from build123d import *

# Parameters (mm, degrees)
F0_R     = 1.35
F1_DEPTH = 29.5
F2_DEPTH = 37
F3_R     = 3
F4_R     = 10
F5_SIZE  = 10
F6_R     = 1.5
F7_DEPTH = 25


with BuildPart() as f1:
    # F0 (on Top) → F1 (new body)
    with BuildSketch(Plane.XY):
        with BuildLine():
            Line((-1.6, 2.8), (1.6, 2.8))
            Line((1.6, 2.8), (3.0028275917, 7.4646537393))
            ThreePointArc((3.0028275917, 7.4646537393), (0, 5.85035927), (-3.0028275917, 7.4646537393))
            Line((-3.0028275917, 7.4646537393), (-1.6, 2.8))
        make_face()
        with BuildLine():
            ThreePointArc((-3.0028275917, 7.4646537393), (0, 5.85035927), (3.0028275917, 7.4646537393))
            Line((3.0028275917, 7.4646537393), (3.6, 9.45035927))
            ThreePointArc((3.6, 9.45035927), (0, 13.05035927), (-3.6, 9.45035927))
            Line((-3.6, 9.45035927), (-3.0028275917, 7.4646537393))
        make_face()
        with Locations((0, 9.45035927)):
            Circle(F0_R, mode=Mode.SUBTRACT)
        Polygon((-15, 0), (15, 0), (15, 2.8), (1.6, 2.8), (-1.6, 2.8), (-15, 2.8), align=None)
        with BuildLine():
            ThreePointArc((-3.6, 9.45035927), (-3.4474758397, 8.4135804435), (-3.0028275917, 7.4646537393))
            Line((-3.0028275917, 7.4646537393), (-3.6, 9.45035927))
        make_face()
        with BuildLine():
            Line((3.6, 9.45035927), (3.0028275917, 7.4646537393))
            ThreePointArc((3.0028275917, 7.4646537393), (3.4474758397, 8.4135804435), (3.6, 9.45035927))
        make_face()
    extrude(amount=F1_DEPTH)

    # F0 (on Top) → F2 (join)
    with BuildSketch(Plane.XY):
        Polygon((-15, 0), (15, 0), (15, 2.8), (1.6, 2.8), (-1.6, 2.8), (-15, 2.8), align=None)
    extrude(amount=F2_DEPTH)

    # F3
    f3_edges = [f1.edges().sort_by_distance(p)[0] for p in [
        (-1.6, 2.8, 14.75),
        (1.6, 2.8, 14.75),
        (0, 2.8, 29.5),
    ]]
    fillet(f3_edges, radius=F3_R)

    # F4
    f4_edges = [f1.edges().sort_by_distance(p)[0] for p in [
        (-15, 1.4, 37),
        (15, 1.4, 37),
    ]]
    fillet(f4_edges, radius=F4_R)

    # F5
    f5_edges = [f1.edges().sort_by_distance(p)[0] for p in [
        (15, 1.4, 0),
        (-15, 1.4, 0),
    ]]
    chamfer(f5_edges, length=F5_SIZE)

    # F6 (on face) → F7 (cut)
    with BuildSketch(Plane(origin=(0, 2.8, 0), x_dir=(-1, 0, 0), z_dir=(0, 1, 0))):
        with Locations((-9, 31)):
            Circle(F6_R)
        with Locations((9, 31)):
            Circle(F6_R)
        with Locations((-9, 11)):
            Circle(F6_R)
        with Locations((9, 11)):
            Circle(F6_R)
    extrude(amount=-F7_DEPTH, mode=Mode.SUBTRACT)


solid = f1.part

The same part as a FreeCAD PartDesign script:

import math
import FreeCAD as App
import Part
import Sketcher

V = App.Vector


def edges_at(feature, points):
    """Names of the edges that pass closest to the given points."""
    edges = feature.Shape.Edges
    near = lambda p: min(range(len(edges)), key=lambda i: edges[i].distToShape(Part.Vertex(*p))[0])
    return sorted({f"Edge{near(p) + 1}" for p in points})

doc = App.newDocument("Part")
body = doc.addObject("PartDesign::Body", "Body")

# Sketch on XY plane
sketch1 = body.newObject("Sketcher::SketchObject", "Sketch")
sketch1.AttachmentSupport = (doc.getObject("XY_Plane"), [""])
sketch1.MapMode = "FlatFace"
sketch1.addGeometry([
    Part.LineSegment(V(-3, 7.5, 0), V(-1.6, 2.8, 0)),  # 0
    Part.LineSegment(V(-1.6, 2.8, 0), V(-15, 2.8, 0)),  # 1
    Part.LineSegment(V(-15, 2.8, 0), V(-15, 0, 0)),  # 2
    Part.LineSegment(V(-15, 0, 0), V(15, 0, 0)),  # 3
    Part.LineSegment(V(15, 0, 0), V(15, 2.8, 0)),  # 4
    Part.LineSegment(V(15, 2.8, 0), V(1.6, 2.8, 0)),  # 5
    Part.LineSegment(V(1.6, 2.8, 0), V(3, 7.5, 0)),  # 6
    Part.ArcOfCircle(Part.Circle(V(0, 9.5, 0), V(0, 0, 1), 3.6), math.radians(-33), math.radians(0)),  # 7
    Part.ArcOfCircle(Part.Circle(V(0, 9.5, 0), V(0, 0, 1), 3.6), math.radians(0), math.radians(180)),  # 8
    Part.ArcOfCircle(Part.Circle(V(0, 9.5, 0), V(0, 0, 1), 3.6), math.radians(180), math.radians(213)),  # 9
    Part.Circle(V(0, 9.5, 0), V(0, 0, 1), 1.4),  # 10
], False)
sketch1.addConstraint([
    Sketcher.Constraint("Coincident", 0, 2, 1, 1),
    Sketcher.Constraint("Coincident", 1, 2, 2, 1),
    Sketcher.Constraint("Coincident", 2, 2, 3, 1),
    Sketcher.Constraint("Coincident", 3, 2, 4, 1),
    Sketcher.Constraint("Coincident", 4, 2, 5, 1),
    Sketcher.Constraint("Coincident", 5, 2, 6, 1),
    Sketcher.Constraint("Coincident", 6, 2, 7, 1),
    Sketcher.Constraint("Tangent", 7, 2, 8, 1),
    Sketcher.Constraint("Tangent", 8, 2, 9, 1),
    Sketcher.Constraint("Coincident", 9, 2, 0, 1),
    Sketcher.Constraint("Horizontal", 1),
    Sketcher.Constraint("Vertical", 2),
    Sketcher.Constraint("Horizontal", 3),
    Sketcher.Constraint("Vertical", 4),
    Sketcher.Constraint("Horizontal", 5),
    Sketcher.Constraint("Coincident", 10, 3, 7, 3),
    Sketcher.Constraint("Equal", 7, 8),
    Sketcher.Constraint("Equal", 8, 9),
    Sketcher.Constraint("Symmetric", 2, 2, 3, 2, -1, 1),
    Sketcher.Constraint("Symmetric", 0, 2, 5, 2, -2),
    Sketcher.Constraint("Symmetric", 7, 2, 8, 2, -2),
    Sketcher.Constraint("Horizontal", 10, 3, 7, 2),
    Sketcher.Constraint("Horizontal", 6, 2, 9, 2),
    Sketcher.Constraint("Diameter", 10, 2.7),
    Sketcher.Constraint("Radius", 7, 3.6),
    Sketcher.Constraint("DistanceX", 3, 1, 3, 2, 30.0),
    Sketcher.Constraint("DistanceX", 1, 2, 1, 1, 13.4),
    Sketcher.Constraint("DistanceY", 2, 2, 2, 1, 2.8),
    Sketcher.Constraint("Distance", 0, 4.871029),
    Sketcher.Constraint("DistanceY", -1, 1, 7, 3, 9.450359),
])
pad1 = body.newObject("PartDesign::Pad", "Pad")
pad1.Profile = sketch1
pad1.Length = 29.5

# Sketch on XY plane
sketch2 = body.newObject("Sketcher::SketchObject", "Sketch001")
sketch2.AttachmentSupport = (doc.getObject("XY_Plane"), [""])
sketch2.MapMode = "FlatFace"
sketch2.addGeometry([
    Part.LineSegment(V(-15, 0, 0), V(15, 0, 0)),
    Part.LineSegment(V(15, 0, 0), V(15, 2.8, 0)),
    Part.LineSegment(V(15, 2.8, 0), V(-15, 2.8, 0)),
    Part.LineSegment(V(-15, 2.8, 0), V(-15, 0, 0)),
], False)
sketch2.addConstraint([
    Sketcher.Constraint("Coincident", 0, 2, 1, 1),
    Sketcher.Constraint("Coincident", 1, 2, 2, 1),
    Sketcher.Constraint("Coincident", 2, 2, 3, 1),
    Sketcher.Constraint("Coincident", 3, 2, 0, 1),
    Sketcher.Constraint("Horizontal", 0),
    Sketcher.Constraint("Vertical", 1),
    Sketcher.Constraint("Horizontal", 2),
    Sketcher.Constraint("Vertical", 3),
    Sketcher.Constraint("Symmetric", 0, 2, 3, 2, -1, 1),
    Sketcher.Constraint("DistanceX", 0, 1, 0, 2, 30.0),
    Sketcher.Constraint("DistanceY", 1, 1, 1, 2, 2.8),
])
pad2 = body.newObject("PartDesign::Pad", "Pad001")
pad2.Profile = sketch2
pad2.Length = 37
doc.recompute()

fillet = body.newObject("PartDesign::Fillet", "Fillet")
fillet.Base = (pad2, edges_at(pad2, [(-1.6, 2.8, 14.75), (1.6, 2.8, 14.75), (0, 2.8, 29.5)]))
fillet.Radius = 3
doc.recompute()

fillet2 = body.newObject("PartDesign::Fillet", "Fillet001")
fillet2.Base = (fillet, edges_at(fillet, [(-15, 1.4, 37), (15, 1.4, 37)]))
fillet2.Radius = 10
doc.recompute()

chamfer = body.newObject("PartDesign::Chamfer", "Chamfer")
chamfer.Base = (fillet2, edges_at(fillet2, [(15, 1.4, 0), (-15, 1.4, 0)]))
chamfer.Size = 10

# Sketch on XZ plane
sketch3 = body.newObject("Sketcher::SketchObject", "Sketch002")
sketch3.AttachmentSupport = (doc.getObject("XZ_Plane"), [""])
sketch3.MapMode = "FlatFace"
sketch3.AttachmentOffset = App.Placement(V(0, 0, -2.8), App.Rotation())
sketch3.addGeometry([
    Part.Circle(V(9, 31, 0), V(0, 0, 1), 1.5),
    Part.Circle(V(-9, 31, 0), V(0, 0, 1), 1.5),
    Part.Circle(V(9, 11, 0), V(0, 0, 1), 1.5),
    Part.Circle(V(-9, 11, 0), V(0, 0, 1), 1.5),
], False)
sketch3.addConstraint([
    Sketcher.Constraint("Equal", 0, 1),
    Sketcher.Constraint("Equal", 1, 2),
    Sketcher.Constraint("Equal", 2, 3),
    Sketcher.Constraint("Symmetric", 0, 3, 1, 3, -2),
    Sketcher.Constraint("Symmetric", 2, 3, 3, 3, -2),
    Sketcher.Constraint("Vertical", 0, 3, 2, 3),
    Sketcher.Constraint("Diameter", 0, 3.0),
    Sketcher.Constraint("DistanceX", -1, 1, 0, 3, 9.0),
    Sketcher.Constraint("DistanceY", -1, 1, 0, 3, 31.0),
    Sketcher.Constraint("DistanceY", -1, 1, 2, 3, 11.0),
])
pocket1 = body.newObject("PartDesign::Pocket", "Pocket")
pocket1.Profile = sketch3
pocket1.Length = 25
pocket1.Reversed = True

doc.recompute()
